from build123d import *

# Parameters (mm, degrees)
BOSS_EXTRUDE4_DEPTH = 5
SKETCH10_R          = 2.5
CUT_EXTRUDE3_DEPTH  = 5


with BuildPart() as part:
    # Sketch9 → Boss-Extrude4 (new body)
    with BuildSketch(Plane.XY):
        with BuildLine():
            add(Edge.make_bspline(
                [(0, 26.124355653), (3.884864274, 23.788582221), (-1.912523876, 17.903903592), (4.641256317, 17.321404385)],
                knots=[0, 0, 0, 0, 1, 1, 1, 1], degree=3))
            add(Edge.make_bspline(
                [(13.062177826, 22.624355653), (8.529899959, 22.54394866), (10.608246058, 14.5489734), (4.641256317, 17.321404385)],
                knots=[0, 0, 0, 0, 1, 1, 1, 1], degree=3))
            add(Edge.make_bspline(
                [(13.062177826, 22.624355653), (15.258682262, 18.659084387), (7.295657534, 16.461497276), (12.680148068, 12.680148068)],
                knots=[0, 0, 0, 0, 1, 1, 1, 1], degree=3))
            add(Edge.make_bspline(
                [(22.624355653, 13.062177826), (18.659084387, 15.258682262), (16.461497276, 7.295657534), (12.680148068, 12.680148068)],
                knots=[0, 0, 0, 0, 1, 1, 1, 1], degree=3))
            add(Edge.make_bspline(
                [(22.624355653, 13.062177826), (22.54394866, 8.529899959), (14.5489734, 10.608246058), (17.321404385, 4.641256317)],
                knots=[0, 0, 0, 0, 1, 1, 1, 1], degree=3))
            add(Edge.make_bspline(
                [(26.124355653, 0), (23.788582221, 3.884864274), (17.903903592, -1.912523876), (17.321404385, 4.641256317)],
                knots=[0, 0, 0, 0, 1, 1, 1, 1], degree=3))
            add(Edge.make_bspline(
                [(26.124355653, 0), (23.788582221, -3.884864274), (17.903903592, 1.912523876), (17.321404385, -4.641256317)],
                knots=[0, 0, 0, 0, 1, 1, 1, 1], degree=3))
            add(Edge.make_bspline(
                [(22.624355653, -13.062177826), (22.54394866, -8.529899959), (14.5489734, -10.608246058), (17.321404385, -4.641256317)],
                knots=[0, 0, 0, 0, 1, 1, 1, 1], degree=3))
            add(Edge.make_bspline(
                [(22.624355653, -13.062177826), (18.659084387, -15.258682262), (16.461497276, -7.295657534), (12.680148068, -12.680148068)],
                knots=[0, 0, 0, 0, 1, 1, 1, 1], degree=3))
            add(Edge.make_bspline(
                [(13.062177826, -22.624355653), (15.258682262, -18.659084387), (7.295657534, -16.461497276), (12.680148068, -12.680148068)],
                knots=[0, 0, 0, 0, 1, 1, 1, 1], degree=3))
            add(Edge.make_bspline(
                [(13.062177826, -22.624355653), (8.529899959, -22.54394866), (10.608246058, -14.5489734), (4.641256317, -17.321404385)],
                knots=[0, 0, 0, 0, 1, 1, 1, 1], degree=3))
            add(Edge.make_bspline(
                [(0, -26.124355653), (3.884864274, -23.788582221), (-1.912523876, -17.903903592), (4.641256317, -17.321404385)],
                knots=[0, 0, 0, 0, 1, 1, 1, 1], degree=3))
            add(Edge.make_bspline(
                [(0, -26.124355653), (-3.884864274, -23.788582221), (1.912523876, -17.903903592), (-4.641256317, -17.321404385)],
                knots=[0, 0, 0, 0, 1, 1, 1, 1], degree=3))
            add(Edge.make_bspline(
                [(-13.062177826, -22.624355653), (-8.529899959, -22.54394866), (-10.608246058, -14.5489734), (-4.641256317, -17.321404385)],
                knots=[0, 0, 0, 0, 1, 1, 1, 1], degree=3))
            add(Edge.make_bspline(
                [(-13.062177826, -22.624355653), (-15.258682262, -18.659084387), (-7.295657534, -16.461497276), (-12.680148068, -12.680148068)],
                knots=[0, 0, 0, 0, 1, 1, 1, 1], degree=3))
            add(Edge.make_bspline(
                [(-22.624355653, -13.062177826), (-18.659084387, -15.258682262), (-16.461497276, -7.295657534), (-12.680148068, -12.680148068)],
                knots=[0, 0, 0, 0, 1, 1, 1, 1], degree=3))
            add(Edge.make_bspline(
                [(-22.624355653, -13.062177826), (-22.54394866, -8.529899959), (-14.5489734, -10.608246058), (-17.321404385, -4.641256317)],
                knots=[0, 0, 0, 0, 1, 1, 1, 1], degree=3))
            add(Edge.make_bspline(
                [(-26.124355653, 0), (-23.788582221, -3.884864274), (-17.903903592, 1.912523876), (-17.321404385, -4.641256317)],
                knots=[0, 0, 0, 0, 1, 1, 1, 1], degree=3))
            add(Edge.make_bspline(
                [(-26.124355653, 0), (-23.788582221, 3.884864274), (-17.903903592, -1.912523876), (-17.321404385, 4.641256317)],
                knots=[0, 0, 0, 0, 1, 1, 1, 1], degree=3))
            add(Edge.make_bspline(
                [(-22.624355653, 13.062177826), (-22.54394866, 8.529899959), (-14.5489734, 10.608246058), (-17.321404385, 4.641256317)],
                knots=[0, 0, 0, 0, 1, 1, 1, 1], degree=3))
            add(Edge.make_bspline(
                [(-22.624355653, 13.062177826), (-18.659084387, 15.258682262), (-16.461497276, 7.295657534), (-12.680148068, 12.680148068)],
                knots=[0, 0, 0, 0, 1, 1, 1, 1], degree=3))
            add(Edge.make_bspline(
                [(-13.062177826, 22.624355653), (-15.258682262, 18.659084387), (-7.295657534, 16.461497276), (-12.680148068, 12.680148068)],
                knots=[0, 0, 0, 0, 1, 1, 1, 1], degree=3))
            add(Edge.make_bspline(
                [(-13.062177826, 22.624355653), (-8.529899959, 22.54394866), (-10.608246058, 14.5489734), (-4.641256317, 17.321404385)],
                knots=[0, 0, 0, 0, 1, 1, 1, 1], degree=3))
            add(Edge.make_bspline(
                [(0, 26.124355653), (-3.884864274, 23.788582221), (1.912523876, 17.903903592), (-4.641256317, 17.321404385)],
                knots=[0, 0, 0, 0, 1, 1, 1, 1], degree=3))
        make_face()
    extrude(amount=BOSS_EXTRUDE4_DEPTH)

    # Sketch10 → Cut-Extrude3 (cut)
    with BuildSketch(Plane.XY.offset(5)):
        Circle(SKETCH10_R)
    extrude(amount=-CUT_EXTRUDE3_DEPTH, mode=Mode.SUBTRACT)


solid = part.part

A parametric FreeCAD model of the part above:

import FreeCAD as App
import Part
import Sketcher

V = App.Vector

doc = App.newDocument("Part")
body = doc.addObject("PartDesign::Body", "Body")

sketch1 = body.newObject("Sketcher::SketchObject", "Sketch")
sketch1.AttachmentSupport = (doc.getObject("XY_Plane"), [""])
sketch1.MapMode = "FlatFace"
sketch1.addGeometry([
    Part.BSplineCurve([V(0, 26.124356, 0), V(3.884864, 23.788582, 0), V(-1.912524, 17.903904, 0), V(4.641256, 17.321404, 0)], [4, 4], [0, 1], False, 3, [1, 1, 1, 1], False),
    Part.BSplineCurve([V(0, 26.124356, 0), V(-3.884864, 23.788582, 0), V(1.912524, 17.903904, 0), V(-4.641256, 17.321404, 0)], [4, 4], [0, 1], False, 3, [1, 1, 1, 1], False),
    Part.BSplineCurve([V(-13.062178, 22.624356, 0), V(-8.5299, 22.543949, 0), V(-10.608246, 14.548973, 0), V(-4.641256, 17.321404, 0)], [4, 4], [0, 1], False, 3, [1, 1, 1, 1], False),
    Part.BSplineCurve([V(-13.062178, 22.624356, 0), V(-15.258682, 18.659084, 0), V(-7.295658, 16.461497, 0), V(-12.680148, 12.680148, 0)], [4, 4], [0, 1], False, 3, [1, 1, 1, 1], False),
    Part.BSplineCurve([V(-22.624356, 13.062178, 0), V(-18.659084, 15.258682, 0), V(-16.461497, 7.295658, 0), V(-12.680148, 12.680148, 0)], [4, 4], [0, 1], False, 3, [1, 1, 1, 1], False),
    Part.BSplineCurve([V(-22.624356, 13.062178, 0), V(-22.543949, 8.5299, 0), V(-14.548973, 10.608246, 0), V(-17.321404, 4.641256, 0)], [4, 4], [0, 1], False, 3, [1, 1, 1, 1], False),
    Part.BSplineCurve([V(-26.124356, 0, 0), V(-23.788582, 3.884864, 0), V(-17.903904, -1.912524, 0), V(-17.321404, 4.641256, 0)], [4, 4], [0, 1], False, 3, [1, 1, 1, 1], False),
    Part.BSplineCurve([V(-26.124356, 0, 0), V(-23.788582, -3.884864, 0), V(-17.903904, 1.912524, 0), V(-17.321404, -4.641256, 0)], [4, 4], [0, 1], False, 3, [1, 1, 1, 1], False),
    Part.BSplineCurve([V(-22.624356, -13.062178, 0), V(-22.543949, -8.5299, 0), V(-14.548973, -10.608246, 0), V(-17.321404, -4.641256, 0)], [4, 4], [0, 1], False, 3, [1, 1, 1, 1], False),
    Part.BSplineCurve([V(-22.624356, -13.062178, 0), V(-18.659084, -15.258682, 0), V(-16.461497, -7.295658, 0), V(-12.680148, -12.680148, 0)], [4, 4], [0, 1], False, 3, [1, 1, 1, 1], False),
    Part.BSplineCurve([V(-13.062178, -22.624356, 0), V(-15.258682, -18.659084, 0), V(-7.295658, -16.461497, 0), V(-12.680148, -12.680148, 0)], [4, 4], [0, 1], False, 3, [1, 1, 1, 1], False),
    Part.BSplineCurve([V(-13.062178, -22.624356, 0), V(-8.5299, -22.543949, 0), V(-10.608246, -14.548973, 0), V(-4.641256, -17.321404, 0)], [4, 4], [0, 1], False, 3, [1, 1, 1, 1], False),
    Part.BSplineCurve([V(0, -26.124356, 0), V(-3.884864, -23.788582, 0), V(1.912524, -17.903904, 0), V(-4.641256, -17.321404, 0)], [4, 4], [0, 1], False, 3, [1, 1, 1, 1], False),
    Part.BSplineCurve([V(0, -26.124356, 0), V(3.884864, -23.788582, 0), V(-1.912524, -17.903904, 0), V(4.641256, -17.321404, 0)], [4, 4], [0, 1], False, 3, [1, 1, 1, 1], False),
    Part.BSplineCurve([V(13.062178, -22.624356, 0), V(8.5299, -22.543949, 0), V(10.608246, -14.548973, 0), V(4.641256, -17.321404, 0)], [4, 4], [0, 1], False, 3, [1, 1, 1, 1], False),
    Part.BSplineCurve([V(13.062178, -22.624356, 0), V(15.258682, -18.659084, 0), V(7.295658, -16.461497, 0), V(12.680148, -12.680148, 0)], [4, 4], [0, 1], False, 3, [1, 1, 1, 1], False),
    Part.BSplineCurve([V(22.624356, -13.062178, 0), V(18.659084, -15.258682, 0), V(16.461497, -7.295658, 0), V(12.680148, -12.680148, 0)], [4, 4], [0, 1], False, 3, [1, 1, 1, 1], False),
    Part.BSplineCurve([V(22.624356, -13.062178, 0), V(22.543949, -8.5299, 0), V(14.548973, -10.608246, 0), V(17.321404, -4.641256, 0)], [4, 4], [0, 1], False, 3, [1, 1, 1, 1], False),
    Part.BSplineCurve([V(26.124356, 0, 0), V(23.788582, -3.884864, 0), V(17.903904, 1.912524, 0), V(17.321404, -4.641256, 0)], [4, 4], [0, 1], False, 3, [1, 1, 1, 1], False),
    Part.BSplineCurve([V(26.124356, 0, 0), V(23.788582, 3.884864, 0), V(17.903904, -1.912524, 0), V(17.321404, 4.641256, 0)], [4, 4], [0, 1], False, 3, [1, 1, 1, 1], False),
    Part.BSplineCurve([V(22.624356, 13.062178, 0), V(22.543949, 8.5299, 0), V(14.548973, 10.608246, 0), V(17.321404, 4.641256, 0)], [4, 4], [0, 1], False, 3, [1, 1, 1, 1], False),
    Part.BSplineCurve([V(22.624356, 13.062178, 0), V(18.659084, 15.258682, 0), V(16.461497, 7.295658, 0), V(12.680148, 12.680148, 0)], [4, 4], [0, 1], False, 3, [1, 1, 1, 1], False),
    Part.BSplineCurve([V(13.062178, 22.624356, 0), V(15.258682, 18.659084, 0), V(7.295658, 16.461497, 0), V(12.680148, 12.680148, 0)], [4, 4], [0, 1], False, 3, [1, 1, 1, 1], False),
    Part.BSplineCurve([V(13.062178, 22.624356, 0), V(8.5299, 22.543949, 0), V(10.608246, 14.548973, 0), V(4.641256, 17.321404, 0)], [4, 4], [0, 1], False, 3, [1, 1, 1, 1], False),
], False)
sketch1.addConstraint([
    Sketcher.Constraint("Block", 0),
    Sketcher.Constraint("Block", 1),
    Sketcher.Constraint("Block", 2),
    Sketcher.Constraint("Block", 3),
    Sketcher.Constraint("Block", 4),
    Sketcher.Constraint("Block", 5),
    Sketcher.Constraint("Block", 6),
    Sketcher.Constraint("Block", 7),
    Sketcher.Constraint("Block", 8),
    Sketcher.Constraint("Block", 9),
    Sketcher.Constraint("Block", 10),
    Sketcher.Constraint("Block", 11),
    Sketcher.Constraint("Block", 12),
    Sketcher.Constraint("Block", 13),
    Sketcher.Constraint("Block", 14),
    Sketcher.Constraint("Block", 15),
    Sketcher.Constraint("Block", 16),
    Sketcher.Constraint("Block", 17),
    Sketcher.Constraint("Block", 18),
    Sketcher.Constraint("Block", 19),
    Sketcher.Constraint("Block", 20),
    Sketcher.Constraint("Block", 21),
    Sketcher.Constraint("Block", 22),
    Sketcher.Constraint("Block", 23),
])
pad1 = body.newObject("PartDesign::Pad", "Pad")
pad1.Profile = sketch1
pad1.Length = 5

sketch2 = body.newObject("Sketcher::SketchObject", "Sketch001")
sketch2.AttachmentSupport = (doc.getObject("XY_Plane"), [""])
sketch2.MapMode = "FlatFace"
sketch2.AttachmentOffset = App.Placement(V(0, 0, 5), App.Rotation())
sketch2.addGeometry(Part.Circle(V(0, 0, 0), V(0, 0, 1), 2.5), False)
sketch2.addConstraint([
    Sketcher.Constraint("Coincident", 0, 3, -1, 1),
    Sketcher.Constraint("Diameter", 0, 5.0),
])
pocket1 = body.newObject("PartDesign::Pocket", "Pocket")
pocket1.Profile = sketch2
pocket1.Length = 5

doc.recompute()
